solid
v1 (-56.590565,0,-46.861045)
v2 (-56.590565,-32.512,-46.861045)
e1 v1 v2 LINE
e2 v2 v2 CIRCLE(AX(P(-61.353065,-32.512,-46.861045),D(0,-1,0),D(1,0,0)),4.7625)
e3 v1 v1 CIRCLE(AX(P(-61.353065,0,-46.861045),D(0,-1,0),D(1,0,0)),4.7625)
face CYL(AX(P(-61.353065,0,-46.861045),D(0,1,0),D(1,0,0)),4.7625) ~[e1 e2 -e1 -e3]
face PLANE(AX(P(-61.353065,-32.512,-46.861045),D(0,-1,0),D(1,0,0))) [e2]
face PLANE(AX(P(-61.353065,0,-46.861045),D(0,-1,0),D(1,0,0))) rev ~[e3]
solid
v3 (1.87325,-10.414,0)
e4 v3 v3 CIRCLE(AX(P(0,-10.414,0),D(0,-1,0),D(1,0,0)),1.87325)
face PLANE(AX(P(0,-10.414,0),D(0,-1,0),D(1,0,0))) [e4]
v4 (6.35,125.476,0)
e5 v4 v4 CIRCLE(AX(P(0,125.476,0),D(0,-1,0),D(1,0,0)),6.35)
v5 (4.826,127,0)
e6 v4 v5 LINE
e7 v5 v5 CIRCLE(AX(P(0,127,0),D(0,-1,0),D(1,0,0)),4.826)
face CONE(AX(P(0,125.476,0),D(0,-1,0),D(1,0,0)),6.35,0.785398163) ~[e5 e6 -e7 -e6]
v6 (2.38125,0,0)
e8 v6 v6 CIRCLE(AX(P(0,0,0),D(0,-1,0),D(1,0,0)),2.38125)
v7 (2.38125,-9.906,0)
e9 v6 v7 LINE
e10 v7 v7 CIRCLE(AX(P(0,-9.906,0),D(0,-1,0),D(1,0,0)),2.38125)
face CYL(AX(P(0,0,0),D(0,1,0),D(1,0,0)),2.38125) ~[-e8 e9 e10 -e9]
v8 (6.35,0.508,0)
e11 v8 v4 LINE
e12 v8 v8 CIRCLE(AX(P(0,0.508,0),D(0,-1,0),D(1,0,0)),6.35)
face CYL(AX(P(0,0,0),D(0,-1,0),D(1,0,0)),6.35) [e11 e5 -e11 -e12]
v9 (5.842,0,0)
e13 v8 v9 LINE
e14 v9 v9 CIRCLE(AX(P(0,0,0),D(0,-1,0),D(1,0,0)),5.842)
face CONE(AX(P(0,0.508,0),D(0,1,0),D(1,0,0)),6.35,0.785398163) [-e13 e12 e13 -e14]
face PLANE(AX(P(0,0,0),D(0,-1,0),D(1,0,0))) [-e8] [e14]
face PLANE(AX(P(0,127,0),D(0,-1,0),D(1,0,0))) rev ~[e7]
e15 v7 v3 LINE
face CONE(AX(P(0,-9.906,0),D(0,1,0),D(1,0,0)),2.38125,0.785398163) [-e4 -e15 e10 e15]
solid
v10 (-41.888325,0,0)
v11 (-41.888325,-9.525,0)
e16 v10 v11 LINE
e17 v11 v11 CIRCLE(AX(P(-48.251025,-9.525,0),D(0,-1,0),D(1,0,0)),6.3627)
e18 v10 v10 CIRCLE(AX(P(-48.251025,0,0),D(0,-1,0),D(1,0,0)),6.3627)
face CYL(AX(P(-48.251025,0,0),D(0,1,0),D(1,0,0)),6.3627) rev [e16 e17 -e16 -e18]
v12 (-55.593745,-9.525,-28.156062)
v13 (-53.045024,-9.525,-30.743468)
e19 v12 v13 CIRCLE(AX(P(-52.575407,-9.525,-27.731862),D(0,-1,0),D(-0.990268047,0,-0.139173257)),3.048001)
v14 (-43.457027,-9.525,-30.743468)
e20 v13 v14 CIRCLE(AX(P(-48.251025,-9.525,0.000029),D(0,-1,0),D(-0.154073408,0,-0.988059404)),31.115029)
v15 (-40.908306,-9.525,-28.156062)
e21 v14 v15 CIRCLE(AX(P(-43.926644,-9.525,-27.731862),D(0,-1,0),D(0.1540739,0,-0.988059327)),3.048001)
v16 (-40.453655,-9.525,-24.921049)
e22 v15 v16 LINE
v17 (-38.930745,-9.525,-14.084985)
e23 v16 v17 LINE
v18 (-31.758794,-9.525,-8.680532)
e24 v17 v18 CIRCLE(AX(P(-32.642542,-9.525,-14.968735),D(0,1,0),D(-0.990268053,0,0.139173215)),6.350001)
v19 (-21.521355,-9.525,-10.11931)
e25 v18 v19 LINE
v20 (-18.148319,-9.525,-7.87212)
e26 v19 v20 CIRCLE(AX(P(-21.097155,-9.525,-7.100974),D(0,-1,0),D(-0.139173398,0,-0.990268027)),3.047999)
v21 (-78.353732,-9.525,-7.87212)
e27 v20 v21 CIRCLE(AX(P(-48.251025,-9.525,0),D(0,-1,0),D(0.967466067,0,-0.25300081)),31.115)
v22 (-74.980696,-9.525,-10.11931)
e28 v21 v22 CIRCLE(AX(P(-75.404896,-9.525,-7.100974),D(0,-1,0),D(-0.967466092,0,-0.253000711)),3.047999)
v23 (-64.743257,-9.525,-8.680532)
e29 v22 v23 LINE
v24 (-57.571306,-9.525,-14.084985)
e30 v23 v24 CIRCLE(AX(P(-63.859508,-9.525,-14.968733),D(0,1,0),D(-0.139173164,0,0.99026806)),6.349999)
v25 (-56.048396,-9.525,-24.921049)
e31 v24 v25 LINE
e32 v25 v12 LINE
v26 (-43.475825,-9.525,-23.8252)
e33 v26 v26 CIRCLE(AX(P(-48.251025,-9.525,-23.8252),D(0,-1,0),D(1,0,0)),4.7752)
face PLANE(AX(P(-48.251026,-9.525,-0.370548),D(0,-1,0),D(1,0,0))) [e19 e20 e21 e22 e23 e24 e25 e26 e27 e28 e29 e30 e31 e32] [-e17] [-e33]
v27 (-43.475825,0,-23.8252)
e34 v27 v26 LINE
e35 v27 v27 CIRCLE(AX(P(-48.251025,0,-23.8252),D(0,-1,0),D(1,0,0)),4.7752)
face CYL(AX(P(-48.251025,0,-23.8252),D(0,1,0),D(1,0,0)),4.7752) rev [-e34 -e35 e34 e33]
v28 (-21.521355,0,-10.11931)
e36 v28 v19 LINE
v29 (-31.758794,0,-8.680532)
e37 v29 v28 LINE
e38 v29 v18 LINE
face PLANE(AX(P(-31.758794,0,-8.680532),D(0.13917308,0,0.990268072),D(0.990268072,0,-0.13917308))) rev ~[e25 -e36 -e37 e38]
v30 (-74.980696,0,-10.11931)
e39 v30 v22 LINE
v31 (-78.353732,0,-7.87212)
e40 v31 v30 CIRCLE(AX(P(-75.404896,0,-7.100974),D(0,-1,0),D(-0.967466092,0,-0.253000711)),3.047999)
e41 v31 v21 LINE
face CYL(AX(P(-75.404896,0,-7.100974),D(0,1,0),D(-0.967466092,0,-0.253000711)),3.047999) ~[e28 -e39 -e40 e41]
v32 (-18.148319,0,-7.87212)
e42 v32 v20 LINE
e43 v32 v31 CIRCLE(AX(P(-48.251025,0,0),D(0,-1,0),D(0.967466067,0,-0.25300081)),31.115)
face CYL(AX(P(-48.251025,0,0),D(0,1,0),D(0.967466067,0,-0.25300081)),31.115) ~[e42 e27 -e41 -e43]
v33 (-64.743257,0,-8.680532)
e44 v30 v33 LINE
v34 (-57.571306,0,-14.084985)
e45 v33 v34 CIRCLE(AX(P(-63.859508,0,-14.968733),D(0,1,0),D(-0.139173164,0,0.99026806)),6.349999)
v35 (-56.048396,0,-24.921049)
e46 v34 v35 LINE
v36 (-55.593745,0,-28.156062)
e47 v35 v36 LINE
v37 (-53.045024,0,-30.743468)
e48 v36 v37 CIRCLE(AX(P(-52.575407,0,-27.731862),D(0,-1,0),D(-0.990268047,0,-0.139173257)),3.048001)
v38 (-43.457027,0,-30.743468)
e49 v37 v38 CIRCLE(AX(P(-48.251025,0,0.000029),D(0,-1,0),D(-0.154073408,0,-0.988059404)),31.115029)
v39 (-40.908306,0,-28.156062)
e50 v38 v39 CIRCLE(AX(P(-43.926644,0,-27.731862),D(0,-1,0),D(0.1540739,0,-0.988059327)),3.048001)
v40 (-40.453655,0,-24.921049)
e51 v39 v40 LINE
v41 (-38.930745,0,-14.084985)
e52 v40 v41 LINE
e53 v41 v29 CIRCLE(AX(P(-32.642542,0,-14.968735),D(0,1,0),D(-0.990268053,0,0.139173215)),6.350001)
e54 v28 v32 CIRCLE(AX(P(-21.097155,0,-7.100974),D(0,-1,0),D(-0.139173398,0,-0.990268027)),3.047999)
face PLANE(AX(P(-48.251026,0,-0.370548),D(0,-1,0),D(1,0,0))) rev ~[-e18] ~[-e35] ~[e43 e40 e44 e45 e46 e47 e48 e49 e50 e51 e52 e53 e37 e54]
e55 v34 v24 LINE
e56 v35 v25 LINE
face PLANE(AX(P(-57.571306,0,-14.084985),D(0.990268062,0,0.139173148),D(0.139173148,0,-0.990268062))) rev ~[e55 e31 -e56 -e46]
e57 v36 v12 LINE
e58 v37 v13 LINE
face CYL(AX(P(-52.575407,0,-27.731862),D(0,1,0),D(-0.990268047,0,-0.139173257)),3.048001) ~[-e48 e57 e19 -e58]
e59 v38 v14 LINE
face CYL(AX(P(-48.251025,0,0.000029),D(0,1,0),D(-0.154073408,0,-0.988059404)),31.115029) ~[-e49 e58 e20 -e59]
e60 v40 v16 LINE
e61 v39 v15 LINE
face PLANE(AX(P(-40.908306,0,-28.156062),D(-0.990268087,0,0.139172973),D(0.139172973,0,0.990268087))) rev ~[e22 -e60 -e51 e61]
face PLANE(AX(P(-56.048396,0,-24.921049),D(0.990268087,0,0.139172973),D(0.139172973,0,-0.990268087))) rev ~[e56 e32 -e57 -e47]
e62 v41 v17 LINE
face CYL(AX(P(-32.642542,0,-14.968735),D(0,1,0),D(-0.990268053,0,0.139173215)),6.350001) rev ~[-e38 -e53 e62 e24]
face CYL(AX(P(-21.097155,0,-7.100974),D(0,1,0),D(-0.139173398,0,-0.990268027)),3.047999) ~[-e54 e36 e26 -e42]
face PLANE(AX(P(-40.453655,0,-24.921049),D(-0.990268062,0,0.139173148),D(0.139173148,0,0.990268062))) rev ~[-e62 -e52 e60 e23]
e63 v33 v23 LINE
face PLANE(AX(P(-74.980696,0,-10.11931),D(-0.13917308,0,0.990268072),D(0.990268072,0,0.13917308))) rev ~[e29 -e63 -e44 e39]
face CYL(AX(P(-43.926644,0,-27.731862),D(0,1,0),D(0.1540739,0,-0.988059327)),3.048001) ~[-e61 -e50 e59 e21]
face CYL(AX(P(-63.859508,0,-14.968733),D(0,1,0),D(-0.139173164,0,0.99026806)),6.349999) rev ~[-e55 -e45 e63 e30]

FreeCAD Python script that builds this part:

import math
import FreeCAD as App
import Part
import Sketcher

V = App.Vector
Q = App.Units.Quantity


def edges_at(feature, points):
    """Names of the edges that pass closest to the given points."""
    edges = feature.Shape.Edges
    near = lambda p: min(range(len(edges)), key=lambda i: edges[i].distToShape(Part.Vertex(*p))[0])
    return sorted({f"Edge{near(p) + 1}" for p in points})

doc = App.newDocument("Part")
body = doc.addObject("PartDesign::Body", "Body")

sketch1 = doc.addObject("Sketcher::SketchObject", "Sketch")
body.addObject(sketch1)
sketch1.AttachmentSupport = (doc.XZ_Plane, [""])
sketch1.MapMode = "FlatFace"
sketch1.addGeometry(Part.Circle(V(0, 0, 0), V(0, 0, 1), 6.35), False)
sketch1.addConstraint([
    Sketcher.Constraint("Coincident", 0, 3, -1, 1),
    Sketcher.Constraint("Diameter", 0, Q("0.5 in")),
])
pad1 = doc.addObject("PartDesign::Pad", "Pad")
body.addObject(pad1)
pad1.Profile = sketch1
pad1.Length = Q("5 in")
pad1.Reversed = True

sketch2 = doc.addObject("Sketcher::SketchObject", "Sketch001")
body.addObject(sketch2)
sketch2.AttachmentSupport = (doc.XZ_Plane, [""])
sketch2.MapMode = "FlatFace"
sketch2.addGeometry(Part.Circle(V(0, 0, 0), V(0, 0, 1), 2.38125), False)
sketch2.addConstraint([
    Sketcher.Constraint("Coincident", 0, 3, -1, 1),
    Sketcher.Constraint("Diameter", 0, Q("0.1875 in")),
])
pad2 = doc.addObject("PartDesign::Pad", "Pad001")
body.addObject(pad2)
pad2.Profile = sketch2
pad2.Length = Q("0.41 in")
doc.recompute()

chamfer = doc.addObject("PartDesign::Chamfer", "Chamfer")
body.addObject(chamfer)
chamfer.Base = (pad2, edges_at(pad2, [(-2.381, -10.414, 0), (-6.35, 0, 0)]))
chamfer.Size = Q("0.02 in")
doc.recompute()

chamfer2 = doc.addObject("PartDesign::Chamfer", "Chamfer001")
body.addObject(chamfer2)
chamfer2.Base = (chamfer, edges_at(chamfer, [(-6.35, 127, 0)]))
chamfer2.Size = Q("0.06 in")
body2 = doc.addObject("PartDesign::Body", "Body001")

sketch3 = doc.addObject("Sketcher::SketchObject", "Sketch002")
body2.addObject(sketch3)
sketch3.AttachmentSupport = (doc.getObject("XZ_Plane001"), [""])
sketch3.MapMode = "FlatFace"
sketch3.addGeometry([
    Part.ArcOfCircle(Part.Circle(V(-21.097155, -7.100974, 0), V(0, 0, 1), 3.047999), math.radians(-98.000017), math.radians(-14.65515)),
    Part.ArcOfCircle(Part.Circle(V(-48.251025, 0, 0), V(0, 0, 1), 31.115), math.radians(-14.655156), math.radians(194.655156)),
    Part.ArcOfCircle(Part.Circle(V(-75.404896, -7.100974, 0), V(0, 0, 1), 3.047999), math.radians(-165.34485), math.radians(-81.999983)),
    Part.LineSegment(V(-74.980696, -10.11931, 0), V(-64.743257, -8.680532, 0)),
    Part.ArcOfCircle(Part.Circle(V(-63.859508, -14.968733, 0), V(0, 0, 1), 6.349999), math.radians(7.999994), math.radians(98.000004)),
    Part.LineSegment(V(-57.571306, -14.084985, 0), V(-56.048396, -24.921049, 0)),
    Part.LineSegment(V(-56.048396, -24.921049, 0), V(-55.593745, -28.156062, 0)),
    Part.ArcOfCircle(Part.Circle(V(-52.575407, -27.731862, 0), V(0, 0, 1), 3.048001), math.radians(-171.999991), math.radians(-98.863089)),
    Part.ArcOfCircle(Part.Circle(V(-48.251025, 0.000029, 0), V(0, 0, 1), 31.115029), math.radians(-98.863061), math.radians(-81.136939)),
    Part.ArcOfCircle(Part.Circle(V(-43.926644, -27.731862, 0), V(0, 0, 1), 3.048001), math.radians(-81.136911), math.radians(-8.000009)),
    Part.LineSegment(V(-40.908306, -28.156062, 0), V(-40.453655, -24.921049, 0)),
    Part.LineSegment(V(-40.453655, -24.921049, 0), V(-38.930745, -14.084985, 0)),
    Part.ArcOfCircle(Part.Circle(V(-32.642542, -14.968735, 0), V(0, 0, 1), 6.350001), math.radians(82.000009), math.radians(171.999993)),
    Part.LineSegment(V(-31.758794, -8.680532, 0), V(-21.521355, -10.11931, 0)),
    Part.Circle(V(-48.251025, -23.8252, 0), V(0, 0, 1), 4.7752),
    Part.Circle(V(-48.251025, 0, 0), V(0, 0, 1), 6.3627),
], False)
sketch3.addConstraint([
    Sketcher.Constraint("Tangent", 0, 2, 1, 1),
    Sketcher.Constraint("Tangent", 1, 2, 2, 1),
    Sketcher.Constraint("Tangent", 2, 2, 3, 1),
    Sketcher.Constraint("Tangent", 3, 2, 4, 2),
    Sketcher.Constraint("Tangent", 4, 1, 5, 1),
    Sketcher.Constraint("Coincident", 5, 2, 6, 1),
    Sketcher.Constraint("Tangent", 6, 2, 7, 1),
    Sketcher.Constraint("Tangent", 7, 2, 8, 1),
    Sketcher.Constraint("Tangent", 8, 2, 9, 1),
    Sketcher.Constraint("Tangent", 9, 2, 10, 1),
    Sketcher.Constraint("Coincident", 10, 2, 11, 1),
    Sketcher.Constraint("Tangent", 11, 2, 12, 2),
    Sketcher.Constraint("Tangent", 12, 1, 13, 1),
    Sketcher.Constraint("Tangent", 13, 2, 0, 1),
    Sketcher.Constraint("Coincident", 15, 3, 1, 3),
    Sketcher.Constraint("Equal", 0, 2),
    Sketcher.Constraint("Equal", 7, 9),
    Sketcher.Constraint("Equal", 4, 12),
    Sketcher.Constraint("PointOnObject", 1, 3, -1),
    Sketcher.Constraint("Perpendicular", 3, 5),
    Sketcher.Constraint("Parallel", 5, 6),
    Sketcher.Constraint("Parallel", 10, 11),
    Sketcher.Constraint("Perpendicular", 11, 13),
    Sketcher.Constraint("Horizontal", 0, 3, 2, 3),
    Sketcher.Constraint("Horizontal", 7, 3, 9, 3),
    Sketcher.Constraint("Horizontal", 4, 3, 12, 3),
    Sketcher.Constraint("Horizontal", 6, 2, 9, 2),
    Sketcher.Constraint("Horizontal", 5, 2, 10, 2),
    Sketcher.Constraint("Vertical", 8, 3, 14, 3),
    Sketcher.Constraint("Radius", 0, Q("0.12 in")),
    Sketcher.Constraint("Radius", 4, Q("0.25 in")),
    Sketcher.Constraint("Radius", 7, Q("0.1200001 in")),
    Sketcher.Constraint("Diameter", 14, Q("0.376 in")),
    Sketcher.Constraint("Diameter", 15, Q("0.501 in")),
    Sketcher.Constraint("Angle", 3, Q("7.999999 deg")),
    Sketcher.Constraint("Radius", 1, Q("1.225 in")),
    Sketcher.Constraint("DistanceY", 14, 3, -1, 1, Q("0.938 in")),
    Sketcher.Constraint("Radius", 8, 31.115029),
    Sketcher.Constraint("DistanceX", 2, 3, 0, 3, Q("2.1381001 in")),
    Sketcher.Constraint("DistanceX", 4, 3, 7, 3, 11.284101),
    Sketcher.Constraint("DistanceX", 6, 2, 9, 3, 11.667101),
    Sketcher.Constraint("DistanceX", 0, 2, -1, 1, 18.148319),
    Sketcher.Constraint("DistanceY", 5, 2, -1, 1, 24.921049),
])
pad3 = doc.addObject("PartDesign::Pad", "Pad002")
body2.addObject(pad3)
pad3.Profile = sketch3
pad3.Length = Q("0.375 in")
body3 = doc.addObject("PartDesign::Body", "Body002")

sketch4 = doc.addObject("Sketcher::SketchObject", "Sketch003")
body3.addObject(sketch4)
sketch4.AttachmentSupport = (doc.getObject("XZ_Plane002"), [""])
sketch4.MapMode = "FlatFace"
sketch4.addGeometry(Part.Circle(V(-61.353065, -46.861045, 0), V(0, 0, 1), 4.7625), False)
sketch4.addConstraint([
    Sketcher.Constraint("Diameter", 0, Q("0.375 in")),
    Sketcher.Constraint("DistanceX", 0, 3, -1, 1, 61.353065),
    Sketcher.Constraint("DistanceY", 0, 3, -1, 1, 46.861045),
])
pad4 = doc.addObject("PartDesign::Pad", "Pad003")
body3.addObject(pad4)
pad4.Profile = sketch4
pad4.Length = Q("1.28 in")

doc.recompute()
